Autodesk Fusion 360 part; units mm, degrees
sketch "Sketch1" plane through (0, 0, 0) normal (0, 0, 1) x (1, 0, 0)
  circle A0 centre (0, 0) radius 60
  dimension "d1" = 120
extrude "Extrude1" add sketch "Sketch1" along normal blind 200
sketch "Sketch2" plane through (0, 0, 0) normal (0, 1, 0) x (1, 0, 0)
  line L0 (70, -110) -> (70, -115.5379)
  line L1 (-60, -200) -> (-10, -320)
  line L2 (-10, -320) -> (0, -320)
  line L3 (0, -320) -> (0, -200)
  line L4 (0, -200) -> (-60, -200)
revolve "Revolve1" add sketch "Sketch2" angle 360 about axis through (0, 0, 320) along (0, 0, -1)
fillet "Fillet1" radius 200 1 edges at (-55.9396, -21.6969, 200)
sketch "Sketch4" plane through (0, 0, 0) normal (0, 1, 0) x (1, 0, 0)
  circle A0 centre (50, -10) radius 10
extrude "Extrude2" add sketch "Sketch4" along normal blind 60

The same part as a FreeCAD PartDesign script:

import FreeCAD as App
import Part
import Sketcher

V = App.Vector


def edges_at(feature, points):
    """Names of the edges that pass closest to the given points."""
    edges = feature.Shape.Edges
    near = lambda p: min(range(len(edges)), key=lambda i: edges[i].distToShape(Part.Vertex(*p))[0])
    return sorted({f"Edge{near(p) + 1}" for p in points})

doc = App.newDocument("Part")
body = doc.addObject("PartDesign::Body", "Body")

# Sketch on XY plane
sketch1 = body.newObject("Sketcher::SketchObject", "Sketch")
sketch1.AttachmentSupport = (doc.getObject("XY_Plane"), [""])
sketch1.MapMode = "FlatFace"
sketch1.addGeometry(Part.Circle(V(0, 0, 0), V(0, 0, 1), 60), False)
sketch1.addConstraint([
    Sketcher.Constraint("Coincident", 0, 3, -1, 1),
    Sketcher.Constraint("Diameter", 0, 120.0),
])
pad1 = body.newObject("PartDesign::Pad", "Pad")
pad1.Profile = sketch1
pad1.Length = 200

# Sketch on XZ plane
sketch2 = body.newObject("Sketcher::SketchObject", "Sketch001")
sketch2.AttachmentSupport = (doc.getObject("XZ_Plane"), [""])
sketch2.MapMode = "FlatFace"
sketch2.addGeometry([
    Part.LineSegment(V(0, 200, 0), V(-60, 200, 0)),
    Part.LineSegment(V(-60, 200, 0), V(-10, 320, 0)),
    Part.LineSegment(V(-10, 320, 0), V(0, 320, 0)),
    Part.LineSegment(V(0, 320, 0), V(0, 200, 0)),
], False)
sketch2.addConstraint([
    Sketcher.Constraint("Coincident", 0, 2, 1, 1),
    Sketcher.Constraint("Coincident", 1, 2, 2, 1),
    Sketcher.Constraint("Coincident", 2, 2, 3, 1),
    Sketcher.Constraint("Coincident", 3, 2, 0, 1),
    Sketcher.Constraint("Horizontal", 0),
    Sketcher.Constraint("Horizontal", 2),
    Sketcher.Constraint("Vertical", 3),
    Sketcher.Constraint("PointOnObject", 2, 2, -2),
    Sketcher.Constraint("DistanceX", 0, 2, 0, 1, 60.0),
    Sketcher.Constraint("DistanceX", 2, 1, 2, 2, 10.0),
    Sketcher.Constraint("DistanceY", 3, 2, 3, 1, 120.0),
    Sketcher.Constraint("DistanceY", -1, 1, 0, 2, 200.0),
])
revolution = body.newObject("PartDesign::Revolution", "Revolution")
revolution.Profile = sketch2
revolution.ReferenceAxis = (sketch2, ["V_Axis"])
revolution.Angle = 360
doc.recompute()

fillet = body.newObject("PartDesign::Fillet", "Fillet")
fillet.Base = (revolution, edges_at(revolution, [(-55.94, -21.697, 200)]))
fillet.Radius = 200

# Sketch on XZ plane
sketch3 = body.newObject("Sketcher::SketchObject", "Sketch002")
sketch3.AttachmentSupport = (doc.getObject("XZ_Plane"), [""])
sketch3.MapMode = "FlatFace"
sketch3.addGeometry(Part.Circle(V(50, 10, 0), V(0, 0, 1), 10), False)
sketch3.addConstraint([
    Sketcher.Constraint("Diameter", 0, 20.0),
    Sketcher.Constraint("DistanceX", -1, 1, 0, 3, 50.0),
    Sketcher.Constraint("DistanceY", -1, 1, 0, 3, 10.0),
])
pad2 = body.newObject("PartDesign::Pad", "Pad001")
pad2.Profile = sketch3
pad2.Length = 60
pad2.Reversed = True

doc.recompute()
